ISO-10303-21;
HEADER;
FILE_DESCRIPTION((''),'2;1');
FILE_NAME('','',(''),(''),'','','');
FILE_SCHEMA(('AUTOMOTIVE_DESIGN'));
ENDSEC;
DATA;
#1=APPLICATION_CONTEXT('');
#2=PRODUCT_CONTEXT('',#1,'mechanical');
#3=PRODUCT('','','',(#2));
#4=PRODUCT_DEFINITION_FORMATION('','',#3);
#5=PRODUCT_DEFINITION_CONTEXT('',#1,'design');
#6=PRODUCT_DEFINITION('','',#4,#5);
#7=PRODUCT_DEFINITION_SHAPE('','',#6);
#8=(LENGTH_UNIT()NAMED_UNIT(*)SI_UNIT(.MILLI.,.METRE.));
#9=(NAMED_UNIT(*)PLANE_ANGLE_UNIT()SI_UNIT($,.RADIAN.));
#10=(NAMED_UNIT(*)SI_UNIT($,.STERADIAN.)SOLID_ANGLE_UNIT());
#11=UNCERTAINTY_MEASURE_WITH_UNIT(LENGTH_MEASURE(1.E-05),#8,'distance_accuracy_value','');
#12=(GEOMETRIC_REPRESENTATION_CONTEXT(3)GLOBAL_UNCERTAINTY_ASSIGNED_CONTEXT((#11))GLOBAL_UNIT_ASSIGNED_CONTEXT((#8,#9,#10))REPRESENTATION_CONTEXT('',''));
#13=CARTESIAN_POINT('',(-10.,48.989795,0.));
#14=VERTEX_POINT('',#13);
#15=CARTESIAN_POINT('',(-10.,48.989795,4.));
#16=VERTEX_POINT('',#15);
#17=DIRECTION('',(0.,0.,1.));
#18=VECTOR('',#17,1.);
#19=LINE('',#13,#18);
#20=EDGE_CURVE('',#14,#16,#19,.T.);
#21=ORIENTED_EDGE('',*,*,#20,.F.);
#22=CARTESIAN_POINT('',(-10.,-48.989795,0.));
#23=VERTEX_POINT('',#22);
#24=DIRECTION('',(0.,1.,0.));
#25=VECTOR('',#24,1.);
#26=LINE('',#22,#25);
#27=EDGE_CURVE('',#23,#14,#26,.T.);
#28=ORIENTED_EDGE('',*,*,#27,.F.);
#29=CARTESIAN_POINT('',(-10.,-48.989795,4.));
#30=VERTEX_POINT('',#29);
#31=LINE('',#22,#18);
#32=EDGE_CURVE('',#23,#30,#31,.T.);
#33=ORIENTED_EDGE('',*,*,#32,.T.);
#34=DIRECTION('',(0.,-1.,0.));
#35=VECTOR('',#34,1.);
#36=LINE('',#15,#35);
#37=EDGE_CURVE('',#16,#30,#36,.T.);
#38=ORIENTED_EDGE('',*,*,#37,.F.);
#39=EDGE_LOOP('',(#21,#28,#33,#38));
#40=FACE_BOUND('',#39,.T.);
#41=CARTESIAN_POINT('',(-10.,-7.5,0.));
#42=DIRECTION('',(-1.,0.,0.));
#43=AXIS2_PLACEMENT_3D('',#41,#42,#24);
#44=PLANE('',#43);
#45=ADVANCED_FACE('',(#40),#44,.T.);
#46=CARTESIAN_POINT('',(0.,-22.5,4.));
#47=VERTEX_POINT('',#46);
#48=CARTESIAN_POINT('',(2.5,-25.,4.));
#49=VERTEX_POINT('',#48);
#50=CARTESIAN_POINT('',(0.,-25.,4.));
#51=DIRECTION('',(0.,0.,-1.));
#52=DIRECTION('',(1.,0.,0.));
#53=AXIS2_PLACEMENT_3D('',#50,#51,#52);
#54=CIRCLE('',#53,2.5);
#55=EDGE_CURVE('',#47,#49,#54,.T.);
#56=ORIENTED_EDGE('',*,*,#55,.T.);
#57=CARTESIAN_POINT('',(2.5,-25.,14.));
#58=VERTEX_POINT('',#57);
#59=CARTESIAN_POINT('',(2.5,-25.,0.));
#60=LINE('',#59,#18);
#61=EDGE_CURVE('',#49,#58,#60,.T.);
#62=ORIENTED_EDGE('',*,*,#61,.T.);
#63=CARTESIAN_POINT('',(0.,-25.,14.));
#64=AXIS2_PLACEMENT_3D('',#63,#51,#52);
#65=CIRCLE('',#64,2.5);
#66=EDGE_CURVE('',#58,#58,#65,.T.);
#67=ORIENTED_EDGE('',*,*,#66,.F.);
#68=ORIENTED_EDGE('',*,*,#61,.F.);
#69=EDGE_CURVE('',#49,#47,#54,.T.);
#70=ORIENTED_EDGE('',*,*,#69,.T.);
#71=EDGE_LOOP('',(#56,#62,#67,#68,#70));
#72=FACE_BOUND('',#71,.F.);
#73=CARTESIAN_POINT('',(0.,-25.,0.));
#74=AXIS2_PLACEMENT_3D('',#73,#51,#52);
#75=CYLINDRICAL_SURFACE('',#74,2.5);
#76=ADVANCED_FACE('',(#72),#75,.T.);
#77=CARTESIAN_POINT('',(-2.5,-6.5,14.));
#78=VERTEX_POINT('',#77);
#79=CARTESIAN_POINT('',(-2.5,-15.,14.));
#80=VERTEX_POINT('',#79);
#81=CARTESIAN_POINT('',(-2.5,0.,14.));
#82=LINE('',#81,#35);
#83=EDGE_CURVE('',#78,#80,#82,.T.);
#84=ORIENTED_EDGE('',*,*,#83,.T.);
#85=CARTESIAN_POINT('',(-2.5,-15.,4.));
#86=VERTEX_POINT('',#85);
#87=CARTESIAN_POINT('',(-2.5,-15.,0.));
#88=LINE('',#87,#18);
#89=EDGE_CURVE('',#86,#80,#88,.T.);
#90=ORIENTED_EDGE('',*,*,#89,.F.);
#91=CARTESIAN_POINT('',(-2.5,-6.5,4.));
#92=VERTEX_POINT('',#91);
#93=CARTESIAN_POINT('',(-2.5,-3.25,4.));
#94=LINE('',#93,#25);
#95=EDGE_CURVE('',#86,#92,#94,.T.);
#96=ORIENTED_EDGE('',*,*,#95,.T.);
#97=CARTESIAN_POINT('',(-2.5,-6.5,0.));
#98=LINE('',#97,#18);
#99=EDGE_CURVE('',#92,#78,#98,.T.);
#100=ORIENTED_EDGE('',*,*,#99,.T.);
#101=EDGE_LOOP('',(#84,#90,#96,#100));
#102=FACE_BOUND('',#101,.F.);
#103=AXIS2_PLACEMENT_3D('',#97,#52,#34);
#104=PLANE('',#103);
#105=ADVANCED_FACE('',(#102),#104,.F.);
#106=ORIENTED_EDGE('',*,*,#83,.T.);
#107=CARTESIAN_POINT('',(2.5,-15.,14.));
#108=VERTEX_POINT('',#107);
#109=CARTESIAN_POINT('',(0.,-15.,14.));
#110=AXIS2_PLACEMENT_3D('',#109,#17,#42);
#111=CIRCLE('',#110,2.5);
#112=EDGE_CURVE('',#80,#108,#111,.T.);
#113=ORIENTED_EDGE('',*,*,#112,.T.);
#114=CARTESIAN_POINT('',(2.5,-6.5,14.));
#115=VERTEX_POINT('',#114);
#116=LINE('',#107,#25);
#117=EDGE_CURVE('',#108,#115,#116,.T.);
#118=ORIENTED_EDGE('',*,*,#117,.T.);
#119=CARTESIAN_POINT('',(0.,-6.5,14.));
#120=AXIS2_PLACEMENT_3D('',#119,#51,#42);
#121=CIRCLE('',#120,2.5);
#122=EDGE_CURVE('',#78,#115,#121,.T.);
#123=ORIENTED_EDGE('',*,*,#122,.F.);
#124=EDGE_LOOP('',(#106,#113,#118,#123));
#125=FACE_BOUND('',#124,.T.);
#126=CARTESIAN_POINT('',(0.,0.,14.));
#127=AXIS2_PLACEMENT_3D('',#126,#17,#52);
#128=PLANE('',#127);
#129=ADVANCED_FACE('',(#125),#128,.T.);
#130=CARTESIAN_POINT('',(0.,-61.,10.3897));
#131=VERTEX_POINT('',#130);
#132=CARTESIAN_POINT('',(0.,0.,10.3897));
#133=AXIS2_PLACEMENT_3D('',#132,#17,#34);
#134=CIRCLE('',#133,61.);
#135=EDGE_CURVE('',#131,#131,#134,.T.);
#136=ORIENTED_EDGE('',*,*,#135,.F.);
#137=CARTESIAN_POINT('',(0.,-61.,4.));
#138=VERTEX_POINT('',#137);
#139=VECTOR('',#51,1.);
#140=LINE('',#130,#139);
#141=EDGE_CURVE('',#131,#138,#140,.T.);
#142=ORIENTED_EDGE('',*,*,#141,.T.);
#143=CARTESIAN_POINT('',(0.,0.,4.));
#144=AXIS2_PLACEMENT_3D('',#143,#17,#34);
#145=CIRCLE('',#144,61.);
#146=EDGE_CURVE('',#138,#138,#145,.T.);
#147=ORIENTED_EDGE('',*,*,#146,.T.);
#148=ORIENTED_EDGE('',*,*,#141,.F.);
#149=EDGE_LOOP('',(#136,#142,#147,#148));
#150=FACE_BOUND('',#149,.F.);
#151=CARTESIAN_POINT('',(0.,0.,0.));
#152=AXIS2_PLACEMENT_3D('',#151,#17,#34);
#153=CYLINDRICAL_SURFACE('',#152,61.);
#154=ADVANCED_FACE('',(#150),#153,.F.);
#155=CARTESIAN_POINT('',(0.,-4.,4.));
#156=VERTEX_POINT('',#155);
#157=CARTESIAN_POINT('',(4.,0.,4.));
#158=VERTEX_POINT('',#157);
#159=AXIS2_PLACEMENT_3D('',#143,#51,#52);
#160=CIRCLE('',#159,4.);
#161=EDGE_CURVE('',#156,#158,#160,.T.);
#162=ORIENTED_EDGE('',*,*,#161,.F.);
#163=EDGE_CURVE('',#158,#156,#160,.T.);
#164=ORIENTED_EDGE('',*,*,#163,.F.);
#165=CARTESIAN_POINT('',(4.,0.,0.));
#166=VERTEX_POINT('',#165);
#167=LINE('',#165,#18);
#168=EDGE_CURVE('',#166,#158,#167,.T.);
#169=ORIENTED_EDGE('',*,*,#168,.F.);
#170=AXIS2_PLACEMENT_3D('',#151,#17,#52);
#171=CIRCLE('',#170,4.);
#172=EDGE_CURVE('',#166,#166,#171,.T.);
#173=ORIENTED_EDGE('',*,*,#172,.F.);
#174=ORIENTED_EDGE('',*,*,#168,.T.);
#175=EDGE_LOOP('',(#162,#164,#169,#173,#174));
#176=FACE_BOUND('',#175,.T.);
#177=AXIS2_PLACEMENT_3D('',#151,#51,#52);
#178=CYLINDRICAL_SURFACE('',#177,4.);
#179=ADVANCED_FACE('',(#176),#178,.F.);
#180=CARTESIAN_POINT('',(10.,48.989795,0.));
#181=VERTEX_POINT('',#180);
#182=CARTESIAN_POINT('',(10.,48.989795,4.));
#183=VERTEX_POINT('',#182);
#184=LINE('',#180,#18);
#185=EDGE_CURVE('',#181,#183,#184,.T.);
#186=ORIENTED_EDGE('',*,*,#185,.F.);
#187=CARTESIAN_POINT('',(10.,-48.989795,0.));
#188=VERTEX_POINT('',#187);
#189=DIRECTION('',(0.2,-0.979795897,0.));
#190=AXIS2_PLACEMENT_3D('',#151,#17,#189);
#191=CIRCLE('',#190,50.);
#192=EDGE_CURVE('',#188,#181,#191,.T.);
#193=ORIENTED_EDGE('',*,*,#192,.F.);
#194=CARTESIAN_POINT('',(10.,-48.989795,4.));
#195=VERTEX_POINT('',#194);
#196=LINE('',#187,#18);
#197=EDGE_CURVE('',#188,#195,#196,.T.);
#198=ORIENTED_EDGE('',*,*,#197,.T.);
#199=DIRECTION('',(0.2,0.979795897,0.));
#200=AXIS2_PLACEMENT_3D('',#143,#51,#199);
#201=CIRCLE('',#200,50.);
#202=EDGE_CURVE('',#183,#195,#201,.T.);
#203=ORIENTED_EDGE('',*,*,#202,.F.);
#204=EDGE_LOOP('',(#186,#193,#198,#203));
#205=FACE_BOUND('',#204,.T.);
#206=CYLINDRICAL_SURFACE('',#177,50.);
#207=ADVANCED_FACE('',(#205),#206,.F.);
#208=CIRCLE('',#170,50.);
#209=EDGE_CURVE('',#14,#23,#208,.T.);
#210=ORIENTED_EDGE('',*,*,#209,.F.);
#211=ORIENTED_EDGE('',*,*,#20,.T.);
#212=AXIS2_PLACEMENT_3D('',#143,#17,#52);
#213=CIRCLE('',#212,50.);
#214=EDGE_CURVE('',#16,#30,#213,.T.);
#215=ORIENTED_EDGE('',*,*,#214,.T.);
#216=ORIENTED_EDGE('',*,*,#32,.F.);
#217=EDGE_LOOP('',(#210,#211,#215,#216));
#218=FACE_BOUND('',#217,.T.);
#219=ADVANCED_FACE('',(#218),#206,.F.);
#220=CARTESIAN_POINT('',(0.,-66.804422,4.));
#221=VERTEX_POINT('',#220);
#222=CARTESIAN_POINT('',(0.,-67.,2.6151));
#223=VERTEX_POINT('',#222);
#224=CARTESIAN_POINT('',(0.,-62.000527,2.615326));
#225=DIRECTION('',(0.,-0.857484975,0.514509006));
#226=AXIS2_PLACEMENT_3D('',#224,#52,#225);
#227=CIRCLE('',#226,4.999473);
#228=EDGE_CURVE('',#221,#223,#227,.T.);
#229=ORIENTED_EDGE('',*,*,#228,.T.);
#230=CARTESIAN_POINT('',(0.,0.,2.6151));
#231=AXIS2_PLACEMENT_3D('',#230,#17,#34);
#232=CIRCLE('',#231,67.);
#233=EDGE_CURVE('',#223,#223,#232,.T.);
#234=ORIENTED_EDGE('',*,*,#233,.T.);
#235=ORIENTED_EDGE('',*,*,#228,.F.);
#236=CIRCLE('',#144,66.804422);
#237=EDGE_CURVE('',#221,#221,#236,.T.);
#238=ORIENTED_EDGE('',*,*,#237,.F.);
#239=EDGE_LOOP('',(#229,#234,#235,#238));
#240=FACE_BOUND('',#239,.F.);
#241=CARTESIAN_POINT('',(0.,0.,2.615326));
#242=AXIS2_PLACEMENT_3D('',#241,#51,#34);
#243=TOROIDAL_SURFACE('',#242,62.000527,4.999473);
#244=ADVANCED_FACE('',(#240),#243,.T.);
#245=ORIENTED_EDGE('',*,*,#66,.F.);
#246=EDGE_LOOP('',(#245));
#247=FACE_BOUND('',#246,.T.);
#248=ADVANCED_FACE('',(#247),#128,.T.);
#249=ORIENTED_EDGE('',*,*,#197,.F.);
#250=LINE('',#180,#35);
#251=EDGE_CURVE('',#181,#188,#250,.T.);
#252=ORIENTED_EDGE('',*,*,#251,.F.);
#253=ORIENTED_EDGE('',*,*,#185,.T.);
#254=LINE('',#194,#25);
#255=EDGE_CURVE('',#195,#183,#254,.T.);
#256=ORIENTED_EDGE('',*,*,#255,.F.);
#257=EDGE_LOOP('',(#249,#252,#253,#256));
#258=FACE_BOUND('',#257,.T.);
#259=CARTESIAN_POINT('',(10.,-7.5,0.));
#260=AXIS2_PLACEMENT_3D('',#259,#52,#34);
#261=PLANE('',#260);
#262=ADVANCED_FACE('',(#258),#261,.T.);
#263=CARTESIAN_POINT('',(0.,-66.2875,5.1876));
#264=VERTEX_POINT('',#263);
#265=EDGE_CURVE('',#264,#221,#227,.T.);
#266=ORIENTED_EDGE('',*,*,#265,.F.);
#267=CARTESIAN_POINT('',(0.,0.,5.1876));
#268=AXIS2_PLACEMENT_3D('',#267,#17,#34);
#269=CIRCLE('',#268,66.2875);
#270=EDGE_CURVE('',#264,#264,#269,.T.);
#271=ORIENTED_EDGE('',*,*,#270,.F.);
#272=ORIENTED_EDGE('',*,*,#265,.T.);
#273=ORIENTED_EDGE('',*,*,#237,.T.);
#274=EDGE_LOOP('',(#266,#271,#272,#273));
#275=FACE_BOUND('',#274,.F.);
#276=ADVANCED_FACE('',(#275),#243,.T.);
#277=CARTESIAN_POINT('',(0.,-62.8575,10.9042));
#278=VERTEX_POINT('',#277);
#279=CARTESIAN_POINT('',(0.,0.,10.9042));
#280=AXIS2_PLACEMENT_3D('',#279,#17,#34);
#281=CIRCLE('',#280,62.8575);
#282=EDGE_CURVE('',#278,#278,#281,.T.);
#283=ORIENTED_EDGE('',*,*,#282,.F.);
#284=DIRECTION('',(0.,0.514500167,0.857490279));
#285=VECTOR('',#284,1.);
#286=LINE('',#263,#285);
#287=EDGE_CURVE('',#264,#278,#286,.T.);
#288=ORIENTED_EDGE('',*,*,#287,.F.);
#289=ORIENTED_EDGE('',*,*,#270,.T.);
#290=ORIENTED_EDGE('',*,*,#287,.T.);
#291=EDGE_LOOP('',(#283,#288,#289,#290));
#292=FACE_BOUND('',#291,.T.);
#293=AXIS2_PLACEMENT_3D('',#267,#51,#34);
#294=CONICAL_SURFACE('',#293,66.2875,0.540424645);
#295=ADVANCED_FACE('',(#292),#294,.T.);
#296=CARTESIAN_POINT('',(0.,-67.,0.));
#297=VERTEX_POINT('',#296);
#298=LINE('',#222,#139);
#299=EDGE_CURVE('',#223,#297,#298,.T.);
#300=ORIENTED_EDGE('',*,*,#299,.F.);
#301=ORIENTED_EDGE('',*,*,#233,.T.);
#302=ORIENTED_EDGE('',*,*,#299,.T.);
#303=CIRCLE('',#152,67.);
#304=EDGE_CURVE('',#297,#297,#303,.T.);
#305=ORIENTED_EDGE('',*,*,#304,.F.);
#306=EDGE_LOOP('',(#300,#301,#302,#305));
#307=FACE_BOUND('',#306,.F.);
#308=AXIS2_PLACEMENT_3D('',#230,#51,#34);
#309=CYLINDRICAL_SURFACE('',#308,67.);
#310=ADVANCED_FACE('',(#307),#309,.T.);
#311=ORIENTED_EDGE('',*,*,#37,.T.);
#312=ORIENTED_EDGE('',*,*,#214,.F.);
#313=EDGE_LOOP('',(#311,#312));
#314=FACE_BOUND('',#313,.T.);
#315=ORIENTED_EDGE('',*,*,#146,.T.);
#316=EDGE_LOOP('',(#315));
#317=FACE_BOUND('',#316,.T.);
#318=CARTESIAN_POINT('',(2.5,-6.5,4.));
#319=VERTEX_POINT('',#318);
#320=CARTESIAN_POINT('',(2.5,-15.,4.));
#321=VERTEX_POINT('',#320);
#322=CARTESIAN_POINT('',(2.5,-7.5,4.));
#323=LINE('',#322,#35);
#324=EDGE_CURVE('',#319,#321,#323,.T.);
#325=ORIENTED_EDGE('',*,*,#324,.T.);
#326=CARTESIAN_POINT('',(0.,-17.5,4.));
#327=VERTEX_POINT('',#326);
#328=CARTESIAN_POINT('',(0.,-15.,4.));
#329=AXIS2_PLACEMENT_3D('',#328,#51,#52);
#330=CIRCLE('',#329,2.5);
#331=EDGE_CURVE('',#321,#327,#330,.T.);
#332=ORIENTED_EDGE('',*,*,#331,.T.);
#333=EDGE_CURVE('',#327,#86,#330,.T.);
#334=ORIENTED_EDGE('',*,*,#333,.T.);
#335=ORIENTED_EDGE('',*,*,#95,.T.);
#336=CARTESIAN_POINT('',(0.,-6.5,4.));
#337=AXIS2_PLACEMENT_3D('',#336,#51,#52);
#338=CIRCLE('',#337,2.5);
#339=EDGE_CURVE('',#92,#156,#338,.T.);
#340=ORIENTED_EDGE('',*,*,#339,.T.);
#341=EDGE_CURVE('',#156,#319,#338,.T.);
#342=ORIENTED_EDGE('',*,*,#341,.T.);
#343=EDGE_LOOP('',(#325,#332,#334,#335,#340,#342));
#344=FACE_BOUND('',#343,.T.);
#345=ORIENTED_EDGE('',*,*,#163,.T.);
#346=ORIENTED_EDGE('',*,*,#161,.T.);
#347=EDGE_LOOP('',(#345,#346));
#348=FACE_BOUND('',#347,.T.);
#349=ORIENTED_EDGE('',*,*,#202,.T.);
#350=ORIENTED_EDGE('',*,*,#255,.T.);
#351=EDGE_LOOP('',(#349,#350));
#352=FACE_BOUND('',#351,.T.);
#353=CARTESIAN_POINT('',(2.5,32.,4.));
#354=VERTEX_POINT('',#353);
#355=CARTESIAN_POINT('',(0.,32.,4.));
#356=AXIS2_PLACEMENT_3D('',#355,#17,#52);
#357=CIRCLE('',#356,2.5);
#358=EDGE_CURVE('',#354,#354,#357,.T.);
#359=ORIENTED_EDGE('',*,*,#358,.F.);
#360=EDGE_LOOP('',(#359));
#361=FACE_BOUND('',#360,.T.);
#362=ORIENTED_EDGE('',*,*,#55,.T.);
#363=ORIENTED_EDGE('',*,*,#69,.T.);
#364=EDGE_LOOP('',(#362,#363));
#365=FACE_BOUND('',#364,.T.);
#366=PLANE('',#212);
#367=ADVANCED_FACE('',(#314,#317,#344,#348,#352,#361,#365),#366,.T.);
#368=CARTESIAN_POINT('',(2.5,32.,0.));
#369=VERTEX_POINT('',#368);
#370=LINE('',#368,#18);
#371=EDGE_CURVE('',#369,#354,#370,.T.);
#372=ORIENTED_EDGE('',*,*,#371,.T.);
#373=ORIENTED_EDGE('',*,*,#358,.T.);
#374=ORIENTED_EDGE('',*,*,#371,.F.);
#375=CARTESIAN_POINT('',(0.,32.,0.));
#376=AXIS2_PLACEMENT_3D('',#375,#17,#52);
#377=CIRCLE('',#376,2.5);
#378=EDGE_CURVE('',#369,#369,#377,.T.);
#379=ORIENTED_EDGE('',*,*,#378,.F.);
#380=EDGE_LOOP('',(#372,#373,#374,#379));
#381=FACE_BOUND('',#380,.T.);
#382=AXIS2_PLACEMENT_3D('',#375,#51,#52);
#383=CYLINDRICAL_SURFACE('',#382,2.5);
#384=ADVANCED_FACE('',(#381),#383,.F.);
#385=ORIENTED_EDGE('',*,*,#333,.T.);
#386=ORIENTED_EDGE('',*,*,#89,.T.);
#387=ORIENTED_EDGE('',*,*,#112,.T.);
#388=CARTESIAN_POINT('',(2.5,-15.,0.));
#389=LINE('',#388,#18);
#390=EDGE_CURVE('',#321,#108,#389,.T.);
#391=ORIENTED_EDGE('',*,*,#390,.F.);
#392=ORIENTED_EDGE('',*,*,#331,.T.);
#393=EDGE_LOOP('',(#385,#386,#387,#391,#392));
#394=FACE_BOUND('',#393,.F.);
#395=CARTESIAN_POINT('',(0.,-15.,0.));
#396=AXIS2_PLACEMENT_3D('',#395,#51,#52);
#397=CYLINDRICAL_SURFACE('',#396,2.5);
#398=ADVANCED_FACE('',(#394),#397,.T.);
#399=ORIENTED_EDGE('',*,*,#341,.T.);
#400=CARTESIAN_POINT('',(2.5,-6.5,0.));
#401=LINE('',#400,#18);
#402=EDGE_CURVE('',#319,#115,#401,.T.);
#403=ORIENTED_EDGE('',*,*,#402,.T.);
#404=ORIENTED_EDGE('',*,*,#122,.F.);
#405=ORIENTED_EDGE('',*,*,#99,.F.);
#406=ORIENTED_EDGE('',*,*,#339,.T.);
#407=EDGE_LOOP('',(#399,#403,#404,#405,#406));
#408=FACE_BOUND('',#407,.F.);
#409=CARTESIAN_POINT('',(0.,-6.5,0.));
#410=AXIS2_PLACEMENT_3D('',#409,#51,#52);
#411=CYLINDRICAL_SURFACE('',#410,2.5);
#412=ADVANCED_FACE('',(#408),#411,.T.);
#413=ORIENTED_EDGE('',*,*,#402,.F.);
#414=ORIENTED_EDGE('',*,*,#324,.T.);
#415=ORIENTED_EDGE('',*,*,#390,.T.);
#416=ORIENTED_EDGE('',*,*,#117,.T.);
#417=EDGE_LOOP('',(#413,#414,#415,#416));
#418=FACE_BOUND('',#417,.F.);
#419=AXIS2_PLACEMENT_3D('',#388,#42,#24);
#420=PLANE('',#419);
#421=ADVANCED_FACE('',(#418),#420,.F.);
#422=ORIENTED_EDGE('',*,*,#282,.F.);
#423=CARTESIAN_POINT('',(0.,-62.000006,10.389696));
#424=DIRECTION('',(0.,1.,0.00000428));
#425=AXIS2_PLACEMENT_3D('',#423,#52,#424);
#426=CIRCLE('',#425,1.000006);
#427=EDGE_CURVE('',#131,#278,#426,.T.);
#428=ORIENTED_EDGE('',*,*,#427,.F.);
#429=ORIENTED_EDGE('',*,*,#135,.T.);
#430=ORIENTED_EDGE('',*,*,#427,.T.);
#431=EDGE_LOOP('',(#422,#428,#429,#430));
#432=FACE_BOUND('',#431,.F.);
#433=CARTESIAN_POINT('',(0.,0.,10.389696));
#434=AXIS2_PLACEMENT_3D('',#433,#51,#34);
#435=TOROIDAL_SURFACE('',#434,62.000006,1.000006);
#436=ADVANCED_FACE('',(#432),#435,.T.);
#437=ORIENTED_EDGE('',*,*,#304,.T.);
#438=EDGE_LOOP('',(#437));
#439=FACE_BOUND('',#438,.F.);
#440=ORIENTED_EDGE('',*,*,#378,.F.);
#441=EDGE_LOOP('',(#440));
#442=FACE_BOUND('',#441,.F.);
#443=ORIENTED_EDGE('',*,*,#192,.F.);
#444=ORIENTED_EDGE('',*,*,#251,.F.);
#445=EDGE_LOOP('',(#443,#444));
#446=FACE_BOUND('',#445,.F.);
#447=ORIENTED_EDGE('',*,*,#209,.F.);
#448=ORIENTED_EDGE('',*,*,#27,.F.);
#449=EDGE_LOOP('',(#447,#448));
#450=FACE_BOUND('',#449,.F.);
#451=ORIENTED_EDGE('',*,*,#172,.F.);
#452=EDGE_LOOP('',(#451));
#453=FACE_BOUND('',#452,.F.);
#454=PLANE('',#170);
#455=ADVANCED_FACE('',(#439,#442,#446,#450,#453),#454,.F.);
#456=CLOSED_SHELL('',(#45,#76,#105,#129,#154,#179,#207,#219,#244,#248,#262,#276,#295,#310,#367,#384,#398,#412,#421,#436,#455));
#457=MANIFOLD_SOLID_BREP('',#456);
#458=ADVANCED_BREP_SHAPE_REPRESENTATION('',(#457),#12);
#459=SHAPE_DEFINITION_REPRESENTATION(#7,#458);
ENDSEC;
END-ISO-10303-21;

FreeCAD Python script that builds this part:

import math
import FreeCAD as App
import Part
import Sketcher

V = App.Vector
Q = App.Units.Quantity

doc = App.newDocument("Part")
body = doc.addObject("PartDesign::Body", "Body")

sketch1 = doc.addObject("Sketcher::SketchObject", "Sketch")
body.addObject(sketch1)
sketch1.AttachmentSupport = (doc.XY_Plane, [""])
sketch1.MapMode = "FlatFace"
sketch1.addGeometry([
    Part.Circle(V(0, 0, 0), V(0, 0, 1), 61),
    Part.LineSegment(V(10, -49, 0), V(10, 49, 0)),
    Part.ArcOfCircle(Part.Circle(V(0, 0, 0), V(0, 0, 1), 50), math.radians(-78), math.radians(78)),
    Part.ArcOfCircle(Part.Circle(V(0, 0, 0), V(0, 0, 1), 50), math.radians(102), math.radians(258)),
    Part.LineSegment(V(-10, 49, 0), V(-10, -49, 0)),
    Part.Circle(V(0, 32, 0), V(0, 0, 1), 2.5),
    Part.Circle(V(0, 0, 0), V(0, 0, 1), 4),
], False)
sketch1.addConstraint([
    Sketcher.Constraint("Coincident", 1, 1, 2, 1),
    Sketcher.Constraint("Coincident", 2, 2, 1, 2),
    Sketcher.Constraint("Coincident", 3, 1, 4, 1),
    Sketcher.Constraint("Coincident", 4, 2, 3, 2),
    Sketcher.Constraint("Vertical", 1),
    Sketcher.Constraint("Vertical", 4),
    Sketcher.Constraint("Coincident", 0, 3, -1, 1),
    Sketcher.Constraint("Coincident", 2, 3, -1, 1),
    Sketcher.Constraint("Coincident", 3, 3, -1, 1),
    Sketcher.Constraint("Coincident", 6, 3, -1, 1),
    Sketcher.Constraint("Equal", 2, 3),
    Sketcher.Constraint("PointOnObject", 5, 3, -2),
    Sketcher.Constraint("Horizontal", 2, 2, 3, 1),
    Sketcher.Constraint("Diameter", 0, Q("122 mm")),
    Sketcher.Constraint("Diameter", 5, Q("5 mm")),
    Sketcher.Constraint("Diameter", 6, Q("8 mm")),
    Sketcher.Constraint("Radius", 2, Q("50 mm")),
    Sketcher.Constraint("DistanceY", -1, 1, 5, 3, Q("32 mm")),
    Sketcher.Constraint("DistanceX", -1, 1, 1, 1, Q("10 mm")),
])
pad1 = doc.addObject("PartDesign::Pad", "Pad")
body.addObject(pad1)
pad1.Profile = sketch1
pad1.Length = 4

sketch2 = doc.addObject("Sketcher::SketchObject", "Sketch001")
body.addObject(sketch2)
sketch2.AttachmentSupport = (doc.XY_Plane, [""])
sketch2.MapMode = "FlatFace"
sketch2.addGeometry([
    Part.Circle(V(0, -25, 0), V(0, 0, 1), 2.5),
    Part.LineSegment(V(-2.5, -6.5, 0), V(-2.5, -15, 0)),
    Part.ArcOfCircle(Part.Circle(V(0, -15, 0), V(0, 0, 1), 2.5), math.radians(180), math.radians(360)),
    Part.LineSegment(V(2.5, -15, 0), V(2.5, -6.5, 0)),
    Part.ArcOfCircle(Part.Circle(V(0, -6.5, 0), V(0, 0, 1), 2.5), math.radians(0), math.radians(180)),
], False)
sketch2.addConstraint([
    Sketcher.Constraint("Tangent", 1, 2, 2, 1),
    Sketcher.Constraint("Tangent", 2, 2, 3, 1),
    Sketcher.Constraint("Tangent", 3, 2, 4, 1),
    Sketcher.Constraint("Tangent", 4, 2, 1, 1),
    Sketcher.Constraint("Vertical", 1),
    Sketcher.Constraint("Vertical", 3),
    Sketcher.Constraint("Equal", 0, 2),
    Sketcher.Constraint("PointOnObject", 0, 3, -2),
    Sketcher.Constraint("PointOnObject", 2, 3, -2),
    Sketcher.Constraint("Diameter", 0, Q("5 mm")),
    Sketcher.Constraint("DistanceY", 2, 3, -1, 1, Q("15 mm")),
    Sketcher.Constraint("DistanceY", 0, 3, 2, 3, Q("10 mm")),
    Sketcher.Constraint("DistanceY", 1, 2, 1, 1, Q("8.5 mm")),
])
pad2 = doc.addObject("PartDesign::Pad", "Pad001")
body.addObject(pad2)
pad2.Profile = sketch2
pad2.Length = 14

sketch3 = doc.addObject("Sketcher::SketchObject", "Sketch002")
body.addObject(sketch3)
sketch3.AttachmentSupport = (doc.YZ_Plane, [""])
sketch3.MapMode = "FlatFace"
sketch3.addGeometry([
    Part.LineSegment(V(-67, 0, 0), V(-61, 0, 0)),
    Part.LineSegment(V(-61, 0, 0), V(-61, 10.4, 0)),
    Part.ArcOfCircle(Part.Circle(V(-62, 10.4, 0), V(0, 0, 1), 1), math.radians(0), math.radians(149)),
    Part.LineSegment(V(-62.9, 10.9, 0), V(-66.3, 5.2, 0)),
    Part.ArcOfCircle(Part.Circle(V(-62, 2.6, 0), V(0, 0, 1), 5), math.radians(149), math.radians(180)),
    Part.LineSegment(V(-67, 2.6, 0), V(-67, 0, 0)),
], False)
sketch3.addConstraint([
    Sketcher.Constraint("Coincident", 0, 2, 1, 1),
    Sketcher.Constraint("Tangent", 1, 2, 2, 1),
    Sketcher.Constraint("Tangent", 2, 2, 3, 1),
    Sketcher.Constraint("Tangent", 3, 2, 4, 1),
    Sketcher.Constraint("Tangent", 4, 2, 5, 1),
    Sketcher.Constraint("Coincident", 5, 2, 0, 1),
    Sketcher.Constraint("Horizontal", 0),
    Sketcher.Constraint("Vertical", 1),
    Sketcher.Constraint("Vertical", 5),
    Sketcher.Constraint("PointOnObject", 0, 2, -1),
    Sketcher.Constraint("Vertical", 2, 3, 4, 3),
    Sketcher.Constraint("Radius", 2, Q("1 mm")),
    Sketcher.Constraint("Radius", 4, Q("5 mm")),
    Sketcher.Constraint("DistanceX", 2, 3, -1, 1, Q("62 mm")),
    Sketcher.Constraint("DistanceY", 5, 2, 5, 1, Q("2.615 mm")),
    Sketcher.Constraint("DistanceX", 3, 2, 2, 2, Q("3.43 mm")),
])
revolution = doc.addObject("PartDesign::Revolution", "Revolution")
body.addObject(revolution)
revolution.Profile = sketch3
revolution.ReferenceAxis = (sketch3, ["V_Axis"])
revolution.Angle = 360

doc.recompute()
